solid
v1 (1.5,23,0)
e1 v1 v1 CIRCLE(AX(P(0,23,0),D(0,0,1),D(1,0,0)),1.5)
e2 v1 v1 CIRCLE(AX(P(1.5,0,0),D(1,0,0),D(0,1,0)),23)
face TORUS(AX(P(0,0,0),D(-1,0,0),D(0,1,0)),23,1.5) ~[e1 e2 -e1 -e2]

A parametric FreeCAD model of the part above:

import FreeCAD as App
import Part
import Sketcher

doc = App.newDocument("Part")
body = doc.addObject("PartDesign::Body", "Body")

# Sketch on XY plane
sketch1 = doc.addObject("Sketcher::SketchObject", "Sketch")
body.addObject(sketch1)
sketch1.AttachmentSupport = (doc.XY_Plane, [""])
sketch1.MapMode = "FlatFace"
sketch1.addGeometry(Part.Circle(App.Vector(0, 23, 0), App.Vector(0, 0, 1), 1.5), False)
sketch1.addConstraint([
    Sketcher.Constraint("PointOnObject", 0, 3, -2),
    Sketcher.Constraint("Diameter", 0, 3.0),
    Sketcher.Constraint("DistanceY", -1, 1, 0, 3, 23.0),
])
revolution = doc.addObject("PartDesign::Revolution", "Revolution")
body.addObject(revolution)
revolution.Profile = sketch1
revolution.ReferenceAxis = (sketch1, ["H_Axis"])
revolution.Angle = 360

doc.recompute()
